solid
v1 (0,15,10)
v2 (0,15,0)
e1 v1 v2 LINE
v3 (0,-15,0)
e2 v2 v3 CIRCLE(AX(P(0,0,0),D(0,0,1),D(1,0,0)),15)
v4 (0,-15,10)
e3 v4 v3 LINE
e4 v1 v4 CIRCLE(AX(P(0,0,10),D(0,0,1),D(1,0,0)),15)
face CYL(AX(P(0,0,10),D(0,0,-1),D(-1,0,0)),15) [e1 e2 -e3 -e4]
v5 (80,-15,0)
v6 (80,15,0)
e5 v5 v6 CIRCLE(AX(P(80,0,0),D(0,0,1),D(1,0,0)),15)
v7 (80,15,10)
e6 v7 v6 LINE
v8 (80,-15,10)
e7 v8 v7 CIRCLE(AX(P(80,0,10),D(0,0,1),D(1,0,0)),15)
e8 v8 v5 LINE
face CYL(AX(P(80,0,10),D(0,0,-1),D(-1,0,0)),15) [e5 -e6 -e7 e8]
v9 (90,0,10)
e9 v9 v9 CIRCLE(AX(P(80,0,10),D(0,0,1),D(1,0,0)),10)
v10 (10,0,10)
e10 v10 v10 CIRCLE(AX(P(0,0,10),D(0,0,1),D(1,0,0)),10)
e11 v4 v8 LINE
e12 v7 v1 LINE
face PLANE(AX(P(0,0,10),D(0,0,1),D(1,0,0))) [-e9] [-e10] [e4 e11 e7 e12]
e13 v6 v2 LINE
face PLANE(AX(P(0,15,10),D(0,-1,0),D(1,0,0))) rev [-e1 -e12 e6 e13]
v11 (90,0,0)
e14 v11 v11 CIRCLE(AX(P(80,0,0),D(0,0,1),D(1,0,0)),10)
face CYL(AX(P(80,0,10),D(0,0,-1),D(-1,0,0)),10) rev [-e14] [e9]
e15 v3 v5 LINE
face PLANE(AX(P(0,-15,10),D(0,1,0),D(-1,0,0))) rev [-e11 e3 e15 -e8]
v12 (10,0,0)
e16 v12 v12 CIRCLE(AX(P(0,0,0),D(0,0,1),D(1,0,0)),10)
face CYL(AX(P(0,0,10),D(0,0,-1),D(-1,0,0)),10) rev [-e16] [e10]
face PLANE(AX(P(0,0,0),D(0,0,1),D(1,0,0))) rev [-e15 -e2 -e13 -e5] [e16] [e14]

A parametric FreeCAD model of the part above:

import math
import FreeCAD as App
import Part
import Sketcher

V = App.Vector

doc = App.newDocument("Part")
body = doc.addObject("PartDesign::Body", "Body")

sketch1 = body.newObject("Sketcher::SketchObject", "Sketch")
sketch1.AttachmentSupport = (doc.getObject("XY_Plane"), [""])
sketch1.MapMode = "FlatFace"
sketch1.addGeometry(Part.LineSegment(V(80, 15, 0), V(0, 15, 0)), False)
sketch1.addGeometry(Part.ArcOfCircle(Part.Circle(V(0, 0, 0), V(0, 0, 1), 15), math.radians(90), math.radians(270)), False)
sketch1.addGeometry(Part.LineSegment(V(0, -15, 0), V(80, -15, 0)), False)
sketch1.addGeometry(Part.ArcOfCircle(Part.Circle(V(80, 0, 0), V(0, 0, 1), 15), math.radians(-90), math.radians(90)), False)
sketch1.addGeometry(Part.Circle(V(80, 0, 0), V(0, 0, 1), 10), False)
sketch1.addGeometry(Part.Circle(V(0, 0, 0), V(0, 0, 1), 10), False)
sketch1.addConstraint(Sketcher.Constraint("Tangent", 0, 2, 1, 1))
sketch1.addConstraint(Sketcher.Constraint("Tangent", 1, 2, 2, 1))
sketch1.addConstraint(Sketcher.Constraint("Tangent", 2, 2, 3, 1))
sketch1.addConstraint(Sketcher.Constraint("Tangent", 3, 2, 0, 1))
sketch1.addConstraint(Sketcher.Constraint("Horizontal", 0))
sketch1.addConstraint(Sketcher.Constraint("Horizontal", 2))
sketch1.addConstraint(Sketcher.Constraint("Coincident", 1, 3, -1, 1))
sketch1.addConstraint(Sketcher.Constraint("Coincident", 5, 3, -1, 1))
sketch1.addConstraint(Sketcher.Constraint("Coincident", 4, 3, 3, 3))
sketch1.addConstraint(Sketcher.Constraint("Equal", 4, 5))
sketch1.addConstraint(Sketcher.Constraint("Diameter", 4, 20.0))
sketch1.addConstraint(Sketcher.Constraint("Radius", 1, 15.0))
sketch1.addConstraint(Sketcher.Constraint("DistanceX", 0, 2, 0, 1, 80.0))
pad1 = body.newObject("PartDesign::Pad", "Pad")
pad1.Profile = sketch1
pad1.Length = 10

doc.recompute()
